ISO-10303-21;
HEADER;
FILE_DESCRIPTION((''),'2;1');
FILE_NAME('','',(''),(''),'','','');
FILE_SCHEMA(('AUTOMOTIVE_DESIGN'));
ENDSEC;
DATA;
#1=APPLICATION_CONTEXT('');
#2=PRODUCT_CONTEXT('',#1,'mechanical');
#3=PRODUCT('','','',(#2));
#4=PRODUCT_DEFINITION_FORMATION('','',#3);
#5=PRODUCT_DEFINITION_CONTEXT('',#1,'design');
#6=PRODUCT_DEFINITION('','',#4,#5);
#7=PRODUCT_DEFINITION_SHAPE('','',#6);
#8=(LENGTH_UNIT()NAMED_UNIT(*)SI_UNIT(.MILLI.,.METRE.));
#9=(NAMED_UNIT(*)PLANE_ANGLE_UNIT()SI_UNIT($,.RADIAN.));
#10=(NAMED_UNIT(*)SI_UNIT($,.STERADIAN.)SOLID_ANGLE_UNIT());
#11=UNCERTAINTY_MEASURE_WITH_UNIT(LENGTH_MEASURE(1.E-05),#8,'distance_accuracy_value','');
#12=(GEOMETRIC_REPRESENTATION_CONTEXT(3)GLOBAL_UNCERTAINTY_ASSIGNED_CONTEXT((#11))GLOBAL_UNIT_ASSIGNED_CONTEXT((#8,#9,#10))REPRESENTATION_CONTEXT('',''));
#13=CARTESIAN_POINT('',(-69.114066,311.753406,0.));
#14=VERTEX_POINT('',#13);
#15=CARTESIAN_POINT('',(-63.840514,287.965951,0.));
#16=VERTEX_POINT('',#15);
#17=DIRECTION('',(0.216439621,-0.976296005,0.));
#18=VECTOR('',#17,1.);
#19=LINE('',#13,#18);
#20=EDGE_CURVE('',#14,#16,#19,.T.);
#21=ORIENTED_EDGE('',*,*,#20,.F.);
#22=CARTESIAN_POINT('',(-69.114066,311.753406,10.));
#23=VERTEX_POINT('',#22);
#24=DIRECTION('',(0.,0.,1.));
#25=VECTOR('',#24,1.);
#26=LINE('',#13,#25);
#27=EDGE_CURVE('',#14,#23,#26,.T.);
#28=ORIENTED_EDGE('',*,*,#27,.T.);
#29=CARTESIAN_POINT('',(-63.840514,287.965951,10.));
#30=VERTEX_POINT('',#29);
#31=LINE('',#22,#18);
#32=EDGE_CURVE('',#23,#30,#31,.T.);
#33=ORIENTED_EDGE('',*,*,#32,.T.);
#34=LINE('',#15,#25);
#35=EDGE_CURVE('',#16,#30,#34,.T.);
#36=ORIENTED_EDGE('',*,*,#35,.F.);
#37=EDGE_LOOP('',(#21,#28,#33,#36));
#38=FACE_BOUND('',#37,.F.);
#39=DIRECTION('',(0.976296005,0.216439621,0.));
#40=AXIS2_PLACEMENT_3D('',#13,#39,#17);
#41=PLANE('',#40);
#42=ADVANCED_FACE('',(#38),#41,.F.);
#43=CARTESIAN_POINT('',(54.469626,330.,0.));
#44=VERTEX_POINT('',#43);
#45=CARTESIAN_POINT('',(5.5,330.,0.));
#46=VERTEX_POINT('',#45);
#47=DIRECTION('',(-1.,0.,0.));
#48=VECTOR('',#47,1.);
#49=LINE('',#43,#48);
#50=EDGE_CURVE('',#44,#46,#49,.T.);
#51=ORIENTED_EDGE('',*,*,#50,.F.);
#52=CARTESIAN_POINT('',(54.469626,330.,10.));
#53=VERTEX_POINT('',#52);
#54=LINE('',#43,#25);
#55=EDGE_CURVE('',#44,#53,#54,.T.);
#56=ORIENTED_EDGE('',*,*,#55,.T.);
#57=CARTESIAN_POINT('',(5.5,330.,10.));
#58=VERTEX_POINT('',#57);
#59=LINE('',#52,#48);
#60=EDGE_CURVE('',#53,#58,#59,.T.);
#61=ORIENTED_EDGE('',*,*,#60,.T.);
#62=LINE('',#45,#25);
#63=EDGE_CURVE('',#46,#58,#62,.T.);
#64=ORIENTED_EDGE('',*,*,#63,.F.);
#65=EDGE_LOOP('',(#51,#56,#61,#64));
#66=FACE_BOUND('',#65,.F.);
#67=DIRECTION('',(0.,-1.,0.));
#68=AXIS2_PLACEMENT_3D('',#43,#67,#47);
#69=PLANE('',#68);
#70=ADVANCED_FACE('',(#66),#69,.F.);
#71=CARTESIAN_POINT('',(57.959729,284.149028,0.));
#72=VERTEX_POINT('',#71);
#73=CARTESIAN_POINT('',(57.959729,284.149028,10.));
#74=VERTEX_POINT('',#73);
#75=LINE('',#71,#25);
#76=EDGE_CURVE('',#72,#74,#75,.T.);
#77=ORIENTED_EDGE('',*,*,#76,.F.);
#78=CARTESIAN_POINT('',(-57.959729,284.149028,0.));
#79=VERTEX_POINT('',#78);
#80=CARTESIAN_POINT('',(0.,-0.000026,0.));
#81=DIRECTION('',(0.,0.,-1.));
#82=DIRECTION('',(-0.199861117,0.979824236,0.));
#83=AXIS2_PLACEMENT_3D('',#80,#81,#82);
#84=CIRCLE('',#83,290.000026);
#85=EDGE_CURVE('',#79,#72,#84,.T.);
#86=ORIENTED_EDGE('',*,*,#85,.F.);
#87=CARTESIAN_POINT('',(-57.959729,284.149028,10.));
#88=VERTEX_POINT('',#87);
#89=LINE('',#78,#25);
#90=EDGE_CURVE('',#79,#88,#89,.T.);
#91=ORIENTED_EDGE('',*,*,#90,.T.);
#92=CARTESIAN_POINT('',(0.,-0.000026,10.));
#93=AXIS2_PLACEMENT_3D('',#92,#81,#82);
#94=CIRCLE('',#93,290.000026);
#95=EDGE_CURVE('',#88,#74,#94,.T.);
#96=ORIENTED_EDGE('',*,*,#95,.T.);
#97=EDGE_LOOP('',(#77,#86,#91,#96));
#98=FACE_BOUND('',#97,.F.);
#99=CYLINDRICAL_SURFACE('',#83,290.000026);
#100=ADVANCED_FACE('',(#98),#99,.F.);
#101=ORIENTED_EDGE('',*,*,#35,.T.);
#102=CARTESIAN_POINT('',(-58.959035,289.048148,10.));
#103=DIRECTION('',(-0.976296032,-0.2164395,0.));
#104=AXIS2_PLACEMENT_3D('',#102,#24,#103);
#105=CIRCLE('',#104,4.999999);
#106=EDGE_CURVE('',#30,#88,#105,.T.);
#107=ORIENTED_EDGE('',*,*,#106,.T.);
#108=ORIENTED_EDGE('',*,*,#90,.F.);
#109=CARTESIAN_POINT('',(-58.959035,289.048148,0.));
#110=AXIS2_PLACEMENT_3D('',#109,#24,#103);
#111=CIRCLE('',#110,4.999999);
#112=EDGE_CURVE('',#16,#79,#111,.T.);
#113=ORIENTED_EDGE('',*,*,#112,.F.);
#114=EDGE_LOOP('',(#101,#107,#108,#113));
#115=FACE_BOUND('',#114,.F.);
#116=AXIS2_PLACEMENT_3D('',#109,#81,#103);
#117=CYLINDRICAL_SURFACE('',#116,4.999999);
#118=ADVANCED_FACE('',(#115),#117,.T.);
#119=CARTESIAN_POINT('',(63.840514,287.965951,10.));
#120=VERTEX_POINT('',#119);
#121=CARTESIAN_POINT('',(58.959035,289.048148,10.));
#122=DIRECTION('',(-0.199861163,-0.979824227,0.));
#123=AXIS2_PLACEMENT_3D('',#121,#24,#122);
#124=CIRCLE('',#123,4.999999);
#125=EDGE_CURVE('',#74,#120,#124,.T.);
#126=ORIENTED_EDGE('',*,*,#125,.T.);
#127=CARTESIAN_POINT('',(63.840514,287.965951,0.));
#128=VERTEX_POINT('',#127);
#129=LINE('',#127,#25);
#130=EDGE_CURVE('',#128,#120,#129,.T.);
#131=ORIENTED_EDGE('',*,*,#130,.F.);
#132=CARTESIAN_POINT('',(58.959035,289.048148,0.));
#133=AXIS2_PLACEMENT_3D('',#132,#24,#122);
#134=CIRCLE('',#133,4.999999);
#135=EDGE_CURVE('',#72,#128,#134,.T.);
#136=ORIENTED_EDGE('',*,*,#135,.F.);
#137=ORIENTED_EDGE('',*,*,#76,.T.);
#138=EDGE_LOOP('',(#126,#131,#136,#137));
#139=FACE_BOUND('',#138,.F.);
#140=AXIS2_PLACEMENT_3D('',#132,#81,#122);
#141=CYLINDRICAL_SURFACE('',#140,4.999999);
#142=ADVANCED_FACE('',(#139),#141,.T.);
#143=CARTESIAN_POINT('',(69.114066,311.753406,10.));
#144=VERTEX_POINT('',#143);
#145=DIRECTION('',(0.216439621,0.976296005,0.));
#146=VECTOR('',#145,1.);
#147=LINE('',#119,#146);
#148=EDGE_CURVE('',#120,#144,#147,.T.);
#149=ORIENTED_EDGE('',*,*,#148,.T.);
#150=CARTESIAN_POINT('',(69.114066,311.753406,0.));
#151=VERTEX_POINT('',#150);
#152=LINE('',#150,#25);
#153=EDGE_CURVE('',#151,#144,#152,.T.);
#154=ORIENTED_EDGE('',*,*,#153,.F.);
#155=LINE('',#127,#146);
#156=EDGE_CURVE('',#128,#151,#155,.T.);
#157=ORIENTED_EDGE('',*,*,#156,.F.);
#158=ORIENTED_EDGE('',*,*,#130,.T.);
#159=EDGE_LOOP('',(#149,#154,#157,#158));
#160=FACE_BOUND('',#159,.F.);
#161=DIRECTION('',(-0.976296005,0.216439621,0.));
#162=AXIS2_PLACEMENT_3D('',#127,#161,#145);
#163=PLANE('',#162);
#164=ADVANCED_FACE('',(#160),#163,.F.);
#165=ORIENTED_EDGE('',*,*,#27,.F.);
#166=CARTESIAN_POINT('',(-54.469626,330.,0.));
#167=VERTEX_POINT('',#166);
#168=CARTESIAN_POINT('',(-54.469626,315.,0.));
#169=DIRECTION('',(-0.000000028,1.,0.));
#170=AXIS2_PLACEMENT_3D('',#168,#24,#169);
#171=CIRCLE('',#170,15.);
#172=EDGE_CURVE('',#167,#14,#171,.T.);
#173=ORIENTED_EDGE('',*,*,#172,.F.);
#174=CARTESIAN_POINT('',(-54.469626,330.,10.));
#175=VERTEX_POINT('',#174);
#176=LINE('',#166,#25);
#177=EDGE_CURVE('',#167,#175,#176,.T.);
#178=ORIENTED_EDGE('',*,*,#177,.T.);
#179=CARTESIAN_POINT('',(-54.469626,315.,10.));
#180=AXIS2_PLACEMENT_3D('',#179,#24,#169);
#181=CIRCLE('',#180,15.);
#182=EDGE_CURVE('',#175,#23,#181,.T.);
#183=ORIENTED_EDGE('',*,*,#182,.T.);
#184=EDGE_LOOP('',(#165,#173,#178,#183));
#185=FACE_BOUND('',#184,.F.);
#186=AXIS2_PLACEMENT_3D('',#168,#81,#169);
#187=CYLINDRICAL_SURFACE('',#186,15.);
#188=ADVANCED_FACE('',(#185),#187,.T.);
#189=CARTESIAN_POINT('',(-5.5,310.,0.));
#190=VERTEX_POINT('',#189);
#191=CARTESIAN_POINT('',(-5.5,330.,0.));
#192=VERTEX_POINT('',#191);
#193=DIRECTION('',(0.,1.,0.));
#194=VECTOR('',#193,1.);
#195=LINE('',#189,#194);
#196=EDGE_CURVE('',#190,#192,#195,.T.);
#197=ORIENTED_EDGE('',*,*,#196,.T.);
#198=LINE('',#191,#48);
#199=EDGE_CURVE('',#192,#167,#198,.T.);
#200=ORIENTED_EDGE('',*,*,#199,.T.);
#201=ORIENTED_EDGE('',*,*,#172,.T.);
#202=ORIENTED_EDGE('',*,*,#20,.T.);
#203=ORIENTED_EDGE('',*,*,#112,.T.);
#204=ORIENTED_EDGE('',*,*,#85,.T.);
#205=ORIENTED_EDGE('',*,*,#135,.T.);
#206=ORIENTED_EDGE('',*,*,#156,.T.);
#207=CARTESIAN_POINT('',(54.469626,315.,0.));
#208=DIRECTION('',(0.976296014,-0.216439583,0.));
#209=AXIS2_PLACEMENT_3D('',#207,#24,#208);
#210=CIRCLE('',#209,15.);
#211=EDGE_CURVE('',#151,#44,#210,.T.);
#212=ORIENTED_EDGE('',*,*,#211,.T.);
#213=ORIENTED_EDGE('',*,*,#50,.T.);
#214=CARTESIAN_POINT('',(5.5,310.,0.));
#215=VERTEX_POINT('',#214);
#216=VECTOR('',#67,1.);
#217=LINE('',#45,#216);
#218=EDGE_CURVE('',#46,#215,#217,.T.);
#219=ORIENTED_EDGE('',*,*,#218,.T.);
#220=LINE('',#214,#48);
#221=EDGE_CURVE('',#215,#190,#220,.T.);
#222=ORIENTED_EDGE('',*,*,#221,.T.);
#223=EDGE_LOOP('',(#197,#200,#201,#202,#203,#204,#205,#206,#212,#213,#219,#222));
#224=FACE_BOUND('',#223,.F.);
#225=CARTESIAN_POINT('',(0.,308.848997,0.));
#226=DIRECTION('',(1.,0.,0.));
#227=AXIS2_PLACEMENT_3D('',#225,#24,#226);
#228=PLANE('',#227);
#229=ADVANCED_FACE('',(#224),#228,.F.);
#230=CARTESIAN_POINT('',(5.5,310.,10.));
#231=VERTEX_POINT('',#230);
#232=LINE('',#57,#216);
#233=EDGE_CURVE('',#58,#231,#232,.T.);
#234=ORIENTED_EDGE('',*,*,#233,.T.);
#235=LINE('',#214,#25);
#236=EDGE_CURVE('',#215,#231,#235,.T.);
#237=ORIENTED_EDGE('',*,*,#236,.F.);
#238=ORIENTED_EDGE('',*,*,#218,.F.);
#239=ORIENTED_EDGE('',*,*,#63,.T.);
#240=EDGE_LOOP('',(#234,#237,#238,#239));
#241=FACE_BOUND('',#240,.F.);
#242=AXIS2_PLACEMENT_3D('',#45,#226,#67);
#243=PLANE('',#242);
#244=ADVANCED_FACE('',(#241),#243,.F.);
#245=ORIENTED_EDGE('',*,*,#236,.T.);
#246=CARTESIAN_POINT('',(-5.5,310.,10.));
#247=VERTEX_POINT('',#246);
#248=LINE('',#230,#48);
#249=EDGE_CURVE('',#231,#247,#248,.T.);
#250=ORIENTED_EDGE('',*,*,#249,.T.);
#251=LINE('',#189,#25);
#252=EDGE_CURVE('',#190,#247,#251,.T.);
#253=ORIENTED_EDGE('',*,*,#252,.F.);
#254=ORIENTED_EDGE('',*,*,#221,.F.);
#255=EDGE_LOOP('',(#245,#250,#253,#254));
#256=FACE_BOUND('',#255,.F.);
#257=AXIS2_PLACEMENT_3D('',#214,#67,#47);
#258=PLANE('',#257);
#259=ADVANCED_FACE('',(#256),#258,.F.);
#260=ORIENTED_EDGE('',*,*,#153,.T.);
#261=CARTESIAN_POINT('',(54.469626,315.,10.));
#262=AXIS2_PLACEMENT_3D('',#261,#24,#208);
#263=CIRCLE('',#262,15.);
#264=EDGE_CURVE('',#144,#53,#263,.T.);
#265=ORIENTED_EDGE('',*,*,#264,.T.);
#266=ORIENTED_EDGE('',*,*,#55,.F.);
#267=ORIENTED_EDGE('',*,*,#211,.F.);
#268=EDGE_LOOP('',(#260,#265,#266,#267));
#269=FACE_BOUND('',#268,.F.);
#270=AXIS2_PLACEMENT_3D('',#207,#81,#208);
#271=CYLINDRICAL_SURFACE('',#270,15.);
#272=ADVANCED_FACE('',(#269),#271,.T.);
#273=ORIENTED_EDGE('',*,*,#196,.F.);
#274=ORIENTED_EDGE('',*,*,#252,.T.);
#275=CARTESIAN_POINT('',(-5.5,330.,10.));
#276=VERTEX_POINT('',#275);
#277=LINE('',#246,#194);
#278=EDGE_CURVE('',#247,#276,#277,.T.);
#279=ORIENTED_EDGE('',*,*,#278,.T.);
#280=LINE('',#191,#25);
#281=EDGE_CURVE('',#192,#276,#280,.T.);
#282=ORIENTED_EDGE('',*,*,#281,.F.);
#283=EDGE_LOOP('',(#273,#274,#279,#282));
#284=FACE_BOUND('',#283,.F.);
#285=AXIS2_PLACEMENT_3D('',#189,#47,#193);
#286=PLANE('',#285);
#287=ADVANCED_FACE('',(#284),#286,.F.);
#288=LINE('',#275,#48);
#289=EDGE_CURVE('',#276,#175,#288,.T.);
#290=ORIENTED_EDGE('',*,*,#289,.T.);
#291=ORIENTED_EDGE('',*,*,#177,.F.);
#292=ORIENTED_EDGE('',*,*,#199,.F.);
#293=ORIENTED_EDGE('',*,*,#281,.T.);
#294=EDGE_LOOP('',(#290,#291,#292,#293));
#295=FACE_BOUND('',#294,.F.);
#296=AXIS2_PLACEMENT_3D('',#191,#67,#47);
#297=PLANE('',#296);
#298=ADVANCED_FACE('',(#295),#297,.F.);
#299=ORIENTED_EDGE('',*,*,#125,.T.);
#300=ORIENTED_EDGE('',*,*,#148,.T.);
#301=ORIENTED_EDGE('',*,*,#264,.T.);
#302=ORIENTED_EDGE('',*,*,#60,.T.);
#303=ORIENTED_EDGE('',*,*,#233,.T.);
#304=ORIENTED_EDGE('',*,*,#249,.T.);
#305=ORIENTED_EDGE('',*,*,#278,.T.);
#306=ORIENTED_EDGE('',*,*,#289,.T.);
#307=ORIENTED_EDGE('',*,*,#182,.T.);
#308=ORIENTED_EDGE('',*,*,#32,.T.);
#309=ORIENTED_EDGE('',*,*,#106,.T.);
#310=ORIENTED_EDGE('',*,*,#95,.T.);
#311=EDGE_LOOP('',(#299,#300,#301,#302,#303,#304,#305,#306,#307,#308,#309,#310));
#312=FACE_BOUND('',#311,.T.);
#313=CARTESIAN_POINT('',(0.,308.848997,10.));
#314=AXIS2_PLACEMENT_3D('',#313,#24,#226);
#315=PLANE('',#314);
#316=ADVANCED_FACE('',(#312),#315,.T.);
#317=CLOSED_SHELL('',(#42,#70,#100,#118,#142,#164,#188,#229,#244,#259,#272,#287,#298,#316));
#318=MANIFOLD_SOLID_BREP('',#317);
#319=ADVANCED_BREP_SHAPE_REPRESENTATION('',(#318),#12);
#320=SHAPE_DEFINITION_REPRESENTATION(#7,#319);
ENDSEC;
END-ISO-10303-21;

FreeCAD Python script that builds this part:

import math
import FreeCAD as App
import Part
import Sketcher
from FreeCAD import Vector
Q = App.Units.Quantity

doc = App.newDocument("Part")
body = doc.addObject("PartDesign::Body", "Body")

sketch1 = doc.addObject("Sketcher::SketchObject", "Sketch")
body.addObject(sketch1)
sketch1.AttachmentSupport = (doc.XY_Plane, [""])
sketch1.MapMode = "FlatFace"
sketch1.addGeometry([
    Part.ArcOfCircle(Part.Circle(Vector(0, 0, 0), Vector(0, 0, 1), 290), math.radians(78), math.radians(102)),
    Part.ArcOfCircle(Part.Circle(Vector(59, 289, 0), Vector(0, 0, 1), 5), math.radians(-102), math.radians(-12)),
    Part.LineSegment(Vector(63.8, 288, 0), Vector(69.1, 311.8, 0)),
    Part.ArcOfCircle(Part.Circle(Vector(54.5, 315, 0), Vector(0, 0, 1), 15), math.radians(-12), math.radians(90)),
    Part.LineSegment(Vector(54.5, 330, 0), Vector(5.5, 330, 0)),
    Part.LineSegment(Vector(5.5, 330, 0), Vector(5.5, 310, 0)),
    Part.LineSegment(Vector(5.5, 310, 0), Vector(-5.5, 310, 0)),
    Part.LineSegment(Vector(-5.5, 310, 0), Vector(-5.5, 330, 0)),
    Part.LineSegment(Vector(-5.5, 330, 0), Vector(-54.5, 330, 0)),
    Part.ArcOfCircle(Part.Circle(Vector(-54.5, 315, 0), Vector(0, 0, 1), 15), math.radians(90), math.radians(192)),
    Part.LineSegment(Vector(-69.1, 311.8, 0), Vector(-63.8, 288, 0)),
    Part.ArcOfCircle(Part.Circle(Vector(-59, 289, 0), Vector(0, 0, 1), 5), math.radians(-168), math.radians(-78)),
], False)
sketch1.addConstraint([
    Sketcher.Constraint("Tangent", 0, 1, 1, 1),
    Sketcher.Constraint("Tangent", 1, 2, 2, 1),
    Sketcher.Constraint("Tangent", 2, 2, 3, 1),
    Sketcher.Constraint("Tangent", 3, 2, 4, 1),
    Sketcher.Constraint("Coincident", 4, 2, 5, 1),
    Sketcher.Constraint("Coincident", 5, 2, 6, 1),
    Sketcher.Constraint("Coincident", 6, 2, 7, 1),
    Sketcher.Constraint("Coincident", 7, 2, 8, 1),
    Sketcher.Constraint("Tangent", 8, 2, 9, 1),
    Sketcher.Constraint("Tangent", 9, 2, 10, 1),
    Sketcher.Constraint("Tangent", 10, 2, 11, 1),
    Sketcher.Constraint("Tangent", 11, 2, 0, 2),
    Sketcher.Constraint("Horizontal", 4),
    Sketcher.Constraint("Vertical", 5),
    Sketcher.Constraint("Horizontal", 6),
    Sketcher.Constraint("Vertical", 7),
    Sketcher.Constraint("Horizontal", 8),
    Sketcher.Constraint("Equal", 3, 9),
    Sketcher.Constraint("Equal", 1, 11),
    Sketcher.Constraint("Symmetric", 3, 3, 9, 3, -2),
    Sketcher.Constraint("Symmetric", 1, 3, 11, 3, -2),
    Sketcher.Constraint("Equal", 4, 8),
    Sketcher.Constraint("Radius", 1, Q("4.999999 mm")),
    Sketcher.Constraint("Radius", 3, Q("15 mm")),
    Sketcher.Constraint("DistanceX", 6, 2, 6, 1, Q("11 mm")),
    Sketcher.Constraint("DistanceY", 5, 2, 5, 1, Q("20 mm")),
    Sketcher.Constraint("DistanceY", -1, 1, 3, 3, Q("315 mm")),
    Sketcher.Constraint("Angle", 2, Q("77.5 deg")),
    Sketcher.Constraint("Radius", 0, Q("290.000026 mm")),
    Sketcher.Constraint("DistanceX", 4, 2, 4, 1, Q("48.969626 mm")),
    Sketcher.Constraint("DistanceY", -1, 1, 1, 3, Q("289.048148 mm")),
])
pad1 = doc.addObject("PartDesign::Pad", "Pad")
body.addObject(pad1)
pad1.Profile = sketch1
pad1.Length = 10

doc.recompute()
